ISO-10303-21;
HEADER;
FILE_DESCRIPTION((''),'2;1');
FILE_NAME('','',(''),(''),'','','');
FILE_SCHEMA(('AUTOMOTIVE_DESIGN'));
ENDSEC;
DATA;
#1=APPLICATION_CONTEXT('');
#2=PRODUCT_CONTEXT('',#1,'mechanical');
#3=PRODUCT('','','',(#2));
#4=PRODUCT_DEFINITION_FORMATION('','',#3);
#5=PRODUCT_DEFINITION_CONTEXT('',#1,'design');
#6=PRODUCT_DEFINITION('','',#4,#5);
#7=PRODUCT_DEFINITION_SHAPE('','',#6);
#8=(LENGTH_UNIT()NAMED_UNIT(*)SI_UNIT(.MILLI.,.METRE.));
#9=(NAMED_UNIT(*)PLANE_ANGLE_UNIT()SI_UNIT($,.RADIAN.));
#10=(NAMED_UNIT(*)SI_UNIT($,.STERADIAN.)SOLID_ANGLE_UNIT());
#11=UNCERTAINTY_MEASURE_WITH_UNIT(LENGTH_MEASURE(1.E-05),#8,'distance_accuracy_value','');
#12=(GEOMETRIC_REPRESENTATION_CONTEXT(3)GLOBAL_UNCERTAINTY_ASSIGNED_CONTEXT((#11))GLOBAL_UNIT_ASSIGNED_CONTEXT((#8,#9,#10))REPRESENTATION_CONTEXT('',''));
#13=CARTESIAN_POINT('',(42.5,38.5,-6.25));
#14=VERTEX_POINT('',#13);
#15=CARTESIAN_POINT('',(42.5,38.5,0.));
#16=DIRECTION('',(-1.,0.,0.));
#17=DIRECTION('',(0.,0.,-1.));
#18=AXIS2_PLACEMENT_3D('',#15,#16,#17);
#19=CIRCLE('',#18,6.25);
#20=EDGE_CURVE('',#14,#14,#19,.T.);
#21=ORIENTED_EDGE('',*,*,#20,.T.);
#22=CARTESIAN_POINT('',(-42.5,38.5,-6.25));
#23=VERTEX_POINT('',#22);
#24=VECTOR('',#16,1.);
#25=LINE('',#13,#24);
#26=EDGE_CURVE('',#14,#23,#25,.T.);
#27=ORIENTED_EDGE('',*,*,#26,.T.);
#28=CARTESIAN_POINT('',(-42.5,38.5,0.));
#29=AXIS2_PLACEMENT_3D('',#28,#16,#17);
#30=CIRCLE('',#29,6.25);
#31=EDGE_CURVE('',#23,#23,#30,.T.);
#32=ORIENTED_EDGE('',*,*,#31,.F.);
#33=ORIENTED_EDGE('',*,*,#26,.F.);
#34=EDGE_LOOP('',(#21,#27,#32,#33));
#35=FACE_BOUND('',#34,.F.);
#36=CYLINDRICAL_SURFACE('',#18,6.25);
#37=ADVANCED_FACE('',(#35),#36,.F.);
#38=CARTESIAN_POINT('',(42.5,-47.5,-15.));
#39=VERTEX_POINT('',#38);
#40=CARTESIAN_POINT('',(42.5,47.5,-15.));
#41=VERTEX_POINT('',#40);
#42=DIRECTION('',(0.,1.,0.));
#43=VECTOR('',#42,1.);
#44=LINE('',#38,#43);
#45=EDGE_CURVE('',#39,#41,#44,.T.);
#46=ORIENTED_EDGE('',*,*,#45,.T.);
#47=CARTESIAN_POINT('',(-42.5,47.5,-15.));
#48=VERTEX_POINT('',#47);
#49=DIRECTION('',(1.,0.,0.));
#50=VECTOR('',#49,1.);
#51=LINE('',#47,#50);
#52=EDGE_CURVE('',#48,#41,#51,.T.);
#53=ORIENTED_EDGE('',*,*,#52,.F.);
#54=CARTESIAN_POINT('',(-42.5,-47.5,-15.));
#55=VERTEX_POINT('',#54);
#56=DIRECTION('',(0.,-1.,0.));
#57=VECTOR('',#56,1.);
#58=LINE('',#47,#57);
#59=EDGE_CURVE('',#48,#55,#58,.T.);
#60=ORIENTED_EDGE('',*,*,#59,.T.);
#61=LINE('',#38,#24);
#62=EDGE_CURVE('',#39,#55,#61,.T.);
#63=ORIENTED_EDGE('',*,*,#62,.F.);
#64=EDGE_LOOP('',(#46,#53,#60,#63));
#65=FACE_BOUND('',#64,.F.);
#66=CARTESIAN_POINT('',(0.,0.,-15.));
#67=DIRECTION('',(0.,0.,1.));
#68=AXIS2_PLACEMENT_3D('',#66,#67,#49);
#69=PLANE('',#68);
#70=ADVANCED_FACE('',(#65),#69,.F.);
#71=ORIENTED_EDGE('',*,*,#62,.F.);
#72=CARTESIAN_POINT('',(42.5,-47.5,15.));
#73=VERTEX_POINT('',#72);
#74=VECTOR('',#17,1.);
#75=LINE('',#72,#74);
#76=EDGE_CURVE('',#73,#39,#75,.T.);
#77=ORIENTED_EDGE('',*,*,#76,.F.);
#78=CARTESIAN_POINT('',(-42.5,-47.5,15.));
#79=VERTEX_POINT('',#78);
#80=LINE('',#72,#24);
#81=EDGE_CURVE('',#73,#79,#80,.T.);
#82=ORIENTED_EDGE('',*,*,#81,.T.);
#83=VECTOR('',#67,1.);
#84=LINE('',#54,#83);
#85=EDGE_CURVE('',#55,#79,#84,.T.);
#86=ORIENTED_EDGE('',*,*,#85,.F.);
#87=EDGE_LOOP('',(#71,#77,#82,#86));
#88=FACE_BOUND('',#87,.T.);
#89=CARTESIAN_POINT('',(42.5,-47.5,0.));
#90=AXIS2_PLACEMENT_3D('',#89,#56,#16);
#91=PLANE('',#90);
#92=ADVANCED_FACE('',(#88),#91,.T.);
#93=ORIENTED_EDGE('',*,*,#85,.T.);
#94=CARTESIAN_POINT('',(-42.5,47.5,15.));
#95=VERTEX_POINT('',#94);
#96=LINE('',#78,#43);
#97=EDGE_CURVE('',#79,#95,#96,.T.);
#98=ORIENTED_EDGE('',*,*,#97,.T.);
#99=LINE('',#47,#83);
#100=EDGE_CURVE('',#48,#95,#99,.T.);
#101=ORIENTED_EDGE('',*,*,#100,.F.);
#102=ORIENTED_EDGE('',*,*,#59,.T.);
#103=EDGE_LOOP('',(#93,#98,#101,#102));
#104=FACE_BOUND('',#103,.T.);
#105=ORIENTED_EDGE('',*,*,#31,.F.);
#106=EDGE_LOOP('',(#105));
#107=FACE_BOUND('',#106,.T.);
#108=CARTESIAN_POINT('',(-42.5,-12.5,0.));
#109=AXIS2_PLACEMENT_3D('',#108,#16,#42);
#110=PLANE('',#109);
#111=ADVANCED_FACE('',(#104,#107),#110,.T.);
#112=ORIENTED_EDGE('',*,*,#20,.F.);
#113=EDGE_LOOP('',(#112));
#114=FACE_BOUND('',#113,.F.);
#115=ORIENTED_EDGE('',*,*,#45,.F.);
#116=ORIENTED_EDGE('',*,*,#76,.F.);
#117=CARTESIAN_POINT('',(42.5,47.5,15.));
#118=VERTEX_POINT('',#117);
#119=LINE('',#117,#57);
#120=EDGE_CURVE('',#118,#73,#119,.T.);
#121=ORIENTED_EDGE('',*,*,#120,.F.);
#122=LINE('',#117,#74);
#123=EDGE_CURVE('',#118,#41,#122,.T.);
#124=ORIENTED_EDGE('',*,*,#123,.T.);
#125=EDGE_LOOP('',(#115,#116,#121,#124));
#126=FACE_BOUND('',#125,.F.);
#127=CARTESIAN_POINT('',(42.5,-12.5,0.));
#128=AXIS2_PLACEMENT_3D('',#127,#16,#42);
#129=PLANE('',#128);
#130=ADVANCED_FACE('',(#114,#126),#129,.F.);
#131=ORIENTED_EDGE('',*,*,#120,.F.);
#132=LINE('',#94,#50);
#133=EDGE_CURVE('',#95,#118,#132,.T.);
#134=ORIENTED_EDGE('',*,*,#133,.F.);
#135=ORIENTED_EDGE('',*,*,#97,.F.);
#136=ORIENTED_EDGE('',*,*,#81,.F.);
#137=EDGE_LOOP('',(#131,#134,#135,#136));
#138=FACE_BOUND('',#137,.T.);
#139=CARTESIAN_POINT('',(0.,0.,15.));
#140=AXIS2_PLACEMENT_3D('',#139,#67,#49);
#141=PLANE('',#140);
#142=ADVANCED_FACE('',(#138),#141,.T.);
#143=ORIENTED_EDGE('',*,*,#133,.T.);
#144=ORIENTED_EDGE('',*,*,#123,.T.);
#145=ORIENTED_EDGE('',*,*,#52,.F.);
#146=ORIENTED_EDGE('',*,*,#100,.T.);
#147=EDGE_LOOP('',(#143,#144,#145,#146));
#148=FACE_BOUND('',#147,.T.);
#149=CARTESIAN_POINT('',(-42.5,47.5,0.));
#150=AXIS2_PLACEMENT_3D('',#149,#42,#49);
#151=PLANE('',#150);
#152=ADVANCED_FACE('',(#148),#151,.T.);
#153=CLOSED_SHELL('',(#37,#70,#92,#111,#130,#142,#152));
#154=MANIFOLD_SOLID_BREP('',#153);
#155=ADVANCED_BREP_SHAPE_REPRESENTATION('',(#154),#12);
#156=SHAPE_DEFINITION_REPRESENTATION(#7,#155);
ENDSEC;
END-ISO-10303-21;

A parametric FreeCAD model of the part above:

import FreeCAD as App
import Part
import Sketcher
from FreeCAD import Vector

doc = App.newDocument("Part")
body = doc.addObject("PartDesign::Body", "Body")

# Sketch on XY plane
sketch1 = body.newObject("Sketcher::SketchObject", "Sketch")
sketch1.AttachmentSupport = (doc.getObject("XY_Plane"), [""])
sketch1.MapMode = "FlatFace"
sketch1.addGeometry([
    Part.LineSegment(Vector(42, 48, 0), Vector(-42, 48, 0)),
    Part.LineSegment(Vector(-42, 48, 0), Vector(-42, -48, 0)),
    Part.LineSegment(Vector(-42, -48, 0), Vector(42, -48, 0)),
    Part.LineSegment(Vector(42, -48, 0), Vector(42, 48, 0)),
], False)
sketch1.addConstraint([
    Sketcher.Constraint("Coincident", 0, 2, 1, 1),
    Sketcher.Constraint("Coincident", 1, 2, 2, 1),
    Sketcher.Constraint("Coincident", 2, 2, 3, 1),
    Sketcher.Constraint("Coincident", 3, 2, 0, 1),
    Sketcher.Constraint("Horizontal", 0),
    Sketcher.Constraint("Vertical", 1),
    Sketcher.Constraint("Horizontal", 2),
    Sketcher.Constraint("Vertical", 3),
    Sketcher.Constraint("Symmetric", 0, 2, 2, 2, -1, 1),
    Sketcher.Constraint("DistanceX", 0, 2, 0, 1, 85.0),
    Sketcher.Constraint("DistanceY", 1, 2, 1, 1, 95.0),
])
pad1 = body.newObject("PartDesign::Pad", "Pad")
pad1.Profile = sketch1
pad1.Length = 30
pad1.Midplane = True

# Sketch on YZ plane
sketch2 = body.newObject("Sketcher::SketchObject", "Sketch001")
sketch2.AttachmentSupport = (doc.getObject("YZ_Plane"), [""])
sketch2.MapMode = "FlatFace"
sketch2.AttachmentOffset = App.Placement(Vector(0, 0, 42.5), App.Rotation())
sketch2.addGeometry(Part.Circle(Vector(38, 0, 0), Vector(0, 0, 1), 6), False)
sketch2.addConstraint([
    Sketcher.Constraint("PointOnObject", 0, 3, -1),
    Sketcher.Constraint("Diameter", 0, 12.5),
    Sketcher.Constraint("DistanceX", -1, 1, 0, 3, 38.5),
])
doc.recompute()
hole = body.newObject("PartDesign::Hole", "Hole")
hole.Profile = sketch2
hole.ThreadType = "None"
hole.Diameter = 12.5
hole.DepthType = "ThroughAll"

doc.recompute()
